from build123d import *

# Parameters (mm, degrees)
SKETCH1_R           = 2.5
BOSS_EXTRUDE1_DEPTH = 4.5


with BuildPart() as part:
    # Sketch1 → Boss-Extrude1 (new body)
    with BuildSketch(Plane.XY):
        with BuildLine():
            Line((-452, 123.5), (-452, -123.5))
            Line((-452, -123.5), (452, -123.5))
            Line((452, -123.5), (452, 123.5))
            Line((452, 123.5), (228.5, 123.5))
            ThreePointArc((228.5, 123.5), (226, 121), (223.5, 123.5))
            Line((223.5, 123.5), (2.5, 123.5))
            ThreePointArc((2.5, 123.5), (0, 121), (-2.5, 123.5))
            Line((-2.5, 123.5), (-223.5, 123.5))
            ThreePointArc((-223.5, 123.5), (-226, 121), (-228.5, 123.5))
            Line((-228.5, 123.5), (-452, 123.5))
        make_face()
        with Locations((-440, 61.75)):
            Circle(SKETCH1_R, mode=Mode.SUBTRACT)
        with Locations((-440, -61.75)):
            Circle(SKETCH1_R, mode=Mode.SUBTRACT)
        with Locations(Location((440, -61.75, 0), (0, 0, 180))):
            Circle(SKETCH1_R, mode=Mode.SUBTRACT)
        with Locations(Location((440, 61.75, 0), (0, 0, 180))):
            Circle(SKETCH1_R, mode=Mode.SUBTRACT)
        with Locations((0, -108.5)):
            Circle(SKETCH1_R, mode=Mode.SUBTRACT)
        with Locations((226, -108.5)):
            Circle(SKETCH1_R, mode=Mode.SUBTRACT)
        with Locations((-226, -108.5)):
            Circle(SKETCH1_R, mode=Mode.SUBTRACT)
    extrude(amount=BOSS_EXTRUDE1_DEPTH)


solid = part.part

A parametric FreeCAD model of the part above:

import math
import FreeCAD as App
import Part
import Sketcher

V = App.Vector

doc = App.newDocument("Part")
body = doc.addObject("PartDesign::Body", "Body")

sketch1 = doc.addObject("Sketcher::SketchObject", "Sketch")
body.addObject(sketch1)
sketch1.AttachmentSupport = (doc.XY_Plane, [""])
sketch1.MapMode = "FlatFace"
sketch1.addGeometry(Part.LineSegment(V(-452, 123.5, 0), V(-452, -123.5, 0)), False)
sketch1.addGeometry(Part.LineSegment(V(-452, -123.5, 0), V(452, -123.5, 0)), False)
sketch1.addGeometry(Part.LineSegment(V(452, -123.5, 0), V(452, 123.5, 0)), False)
sketch1.addGeometry(Part.LineSegment(V(452, 123.5, 0), V(228.5, 123.5, 0)), False)
sketch1.addGeometry(Part.ArcOfCircle(Part.Circle(V(226, 123.5, 0), V(0, 0, 1), 2.5), math.radians(180), math.radians(360)), False)
sketch1.addGeometry(Part.LineSegment(V(223.5, 123.5, 0), V(2.5, 123.5, 0)), False)
sketch1.addGeometry(Part.ArcOfCircle(Part.Circle(V(0, 123.5, 0), V(0, 0, 1), 2.5), math.radians(180), math.radians(360)), False)
sketch1.addGeometry(Part.LineSegment(V(-2.5, 123.5, 0), V(-223.5, 123.5, 0)), False)
sketch1.addGeometry(Part.ArcOfCircle(Part.Circle(V(-226, 123.5, 0), V(0, 0, 1), 2.5), math.radians(180), math.radians(360)), False)
sketch1.addGeometry(Part.LineSegment(V(-228.5, 123.5, 0), V(-452, 123.5, 0)), False)
sketch1.addGeometry(Part.Circle(V(-226, -108.5, 0), V(0, 0, 1), 2.5), False)
sketch1.addGeometry(Part.Circle(V(-440, -61.8, 0), V(0, 0, 1), 2.5), False)
sketch1.addGeometry(Part.Circle(V(0, -108.5, 0), V(0, 0, 1), 2.5), False)
sketch1.addGeometry(Part.Circle(V(226, -108.5, 0), V(0, 0, 1), 2.5), False)
sketch1.addGeometry(Part.Circle(V(440, -61.8, 0), V(0, 0, 1), 2.5), False)
sketch1.addGeometry(Part.Circle(V(-440, 61.8, 0), V(0, 0, 1), 2.5), False)
sketch1.addGeometry(Part.Circle(V(440, 61.8, 0), V(0, 0, 1), 2.5), False)
sketch1.addConstraint(Sketcher.Constraint("Coincident", 0, 2, 1, 1))
sketch1.addConstraint(Sketcher.Constraint("Coincident", 1, 2, 2, 1))
sketch1.addConstraint(Sketcher.Constraint("Coincident", 2, 2, 3, 1))
sketch1.addConstraint(Sketcher.Constraint("Coincident", 3, 2, 4, 2))
sketch1.addConstraint(Sketcher.Constraint("Coincident", 4, 1, 5, 1))
sketch1.addConstraint(Sketcher.Constraint("Coincident", 5, 2, 6, 2))
sketch1.addConstraint(Sketcher.Constraint("Coincident", 6, 1, 7, 1))
sketch1.addConstraint(Sketcher.Constraint("Coincident", 7, 2, 8, 2))
sketch1.addConstraint(Sketcher.Constraint("Coincident", 8, 1, 9, 1))
sketch1.addConstraint(Sketcher.Constraint("Coincident", 9, 2, 0, 1))
sketch1.addConstraint(Sketcher.Constraint("Vertical", 0))
sketch1.addConstraint(Sketcher.Constraint("Horizontal", 1))
sketch1.addConstraint(Sketcher.Constraint("Vertical", 2))
sketch1.addConstraint(Sketcher.Constraint("Horizontal", 3))
sketch1.addConstraint(Sketcher.Constraint("Horizontal", 5))
sketch1.addConstraint(Sketcher.Constraint("Horizontal", 7))
sketch1.addConstraint(Sketcher.Constraint("Horizontal", 9))
sketch1.addConstraint(Sketcher.Constraint("Equal", 4, 6))
sketch1.addConstraint(Sketcher.Constraint("Equal", 6, 8))
sketch1.addConstraint(Sketcher.Constraint("Equal", 8, 10))
sketch1.addConstraint(Sketcher.Constraint("Equal", 10, 11))
sketch1.addConstraint(Sketcher.Constraint("Equal", 11, 12))
sketch1.addConstraint(Sketcher.Constraint("Equal", 12, 13))
sketch1.addConstraint(Sketcher.Constraint("Equal", 13, 14))
sketch1.addConstraint(Sketcher.Constraint("Equal", 14, 15))
sketch1.addConstraint(Sketcher.Constraint("Equal", 15, 16))
sketch1.addConstraint(Sketcher.Constraint("Symmetric", 14, 3, 15, 3, -1, 1))
sketch1.addConstraint(Sketcher.Constraint("Symmetric", 11, 3, 16, 3, -1, 1))
sketch1.addConstraint(Sketcher.Constraint("Symmetric", 0, 2, 2, 2, -1, 1))
sketch1.addConstraint(Sketcher.Constraint("Symmetric", 4, 3, 8, 3, -2))
sketch1.addConstraint(Sketcher.Constraint("Symmetric", 10, 3, 13, 3, -2))
sketch1.addConstraint(Sketcher.Constraint("Symmetric", 11, 3, 14, 3, -2))
sketch1.addConstraint(Sketcher.Constraint("Symmetric", 5, 2, 6, 1, -2))
sketch1.addConstraint(Sketcher.Constraint("PointOnObject", 12, 3, -2))
sketch1.addConstraint(Sketcher.Constraint("Horizontal", 4, 3, 6, 3))
sketch1.addConstraint(Sketcher.Constraint("Horizontal", 10, 3, 12, 3))
sketch1.addConstraint(Sketcher.Constraint("Horizontal", 8, 3, 2, 2))
sketch1.addConstraint(Sketcher.Constraint("Horizontal", 3, 2, 4, 1))
sketch1.addConstraint(Sketcher.Constraint("Horizontal", 7, 2, 8, 1))
sketch1.addConstraint(Sketcher.Constraint("Vertical", 8, 3, 10, 3))
sketch1.addConstraint(Sketcher.Constraint("Diameter", 10, 5.0))
sketch1.addConstraint(Sketcher.Constraint("DistanceX", 1, 1, 1, 2, 904.0))
sketch1.addConstraint(Sketcher.Constraint("DistanceX", 5, 2, 5, 1, 221.0))
sketch1.addConstraint(Sketcher.Constraint("DistanceY", 0, 2, 0, 1, 247.0))
sketch1.addConstraint(Sketcher.Constraint("DistanceX", 11, 3, -1, 1, 440.0))
sketch1.addConstraint(Sketcher.Constraint("DistanceY", 10, 3, 8, 3, 232.0))
sketch1.addConstraint(Sketcher.Constraint("DistanceY", 11, 3, 15, 3, 123.5))
pad1 = doc.addObject("PartDesign::Pad", "Pad")
body.addObject(pad1)
pad1.Profile = sketch1
pad1.Length = 4.5

doc.recompute()
